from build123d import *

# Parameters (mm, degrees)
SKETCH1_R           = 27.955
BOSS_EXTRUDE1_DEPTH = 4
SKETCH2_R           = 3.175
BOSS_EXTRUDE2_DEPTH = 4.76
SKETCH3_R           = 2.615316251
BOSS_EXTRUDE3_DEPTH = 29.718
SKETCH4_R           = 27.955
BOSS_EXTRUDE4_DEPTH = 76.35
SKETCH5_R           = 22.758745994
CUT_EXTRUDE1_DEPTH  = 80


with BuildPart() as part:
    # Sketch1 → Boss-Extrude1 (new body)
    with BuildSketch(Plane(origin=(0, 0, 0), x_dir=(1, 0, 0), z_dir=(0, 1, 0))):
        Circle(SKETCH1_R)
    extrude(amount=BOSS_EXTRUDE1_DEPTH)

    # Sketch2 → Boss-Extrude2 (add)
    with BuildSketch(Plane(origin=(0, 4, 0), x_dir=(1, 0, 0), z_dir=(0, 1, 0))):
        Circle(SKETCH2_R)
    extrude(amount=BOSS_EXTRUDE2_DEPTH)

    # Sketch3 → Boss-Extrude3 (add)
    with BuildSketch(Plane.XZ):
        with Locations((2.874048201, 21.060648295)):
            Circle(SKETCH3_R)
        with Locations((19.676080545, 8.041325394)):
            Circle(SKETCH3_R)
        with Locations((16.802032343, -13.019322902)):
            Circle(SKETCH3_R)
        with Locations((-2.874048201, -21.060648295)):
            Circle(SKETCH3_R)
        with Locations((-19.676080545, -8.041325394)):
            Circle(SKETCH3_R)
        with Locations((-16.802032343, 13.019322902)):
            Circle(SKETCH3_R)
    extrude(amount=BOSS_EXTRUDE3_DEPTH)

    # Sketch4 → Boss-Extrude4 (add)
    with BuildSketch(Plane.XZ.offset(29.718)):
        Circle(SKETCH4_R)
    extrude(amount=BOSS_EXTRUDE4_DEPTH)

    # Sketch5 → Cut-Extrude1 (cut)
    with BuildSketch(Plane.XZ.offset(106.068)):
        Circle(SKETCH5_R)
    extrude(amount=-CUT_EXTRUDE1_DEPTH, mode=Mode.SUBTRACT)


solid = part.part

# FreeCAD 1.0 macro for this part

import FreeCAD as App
import Part
import Sketcher
Q = App.Units.Quantity

doc = App.newDocument("Part")
body = doc.addObject("PartDesign::Body", "Body")

sketch1 = doc.addObject("Sketcher::SketchObject", "Sketch")
body.addObject(sketch1)
sketch1.AttachmentSupport = (doc.XZ_Plane, [""])
sketch1.MapMode = "FlatFace"
sketch1.addGeometry(Part.Circle(App.Vector(0, 0, 0), App.Vector(0, 0, 1), 27.955), False)
sketch1.addConstraint([
    Sketcher.Constraint("Coincident", 0, 3, -1, 1),
    Sketcher.Constraint("Diameter", 0, Q("55.91 mm")),
])
pad1 = doc.addObject("PartDesign::Pad", "Pad")
body.addObject(pad1)
pad1.Profile = sketch1
pad1.Length = 4
pad1.Reversed = True

sketch2 = doc.addObject("Sketcher::SketchObject", "Sketch001")
body.addObject(sketch2)
sketch2.AttachmentSupport = (doc.XZ_Plane, [""])
sketch2.MapMode = "FlatFace"
sketch2.AttachmentOffset = App.Placement(App.Vector(0, 0, -4), App.Rotation())
sketch2.addGeometry(Part.Circle(App.Vector(0, 0, 0), App.Vector(0, 0, 1), 3.175), False)
sketch2.addConstraint([
    Sketcher.Constraint("Coincident", 0, 3, -1, 1),
    Sketcher.Constraint("Diameter", 0, Q("6.35 mm")),
])
pad2 = doc.addObject("PartDesign::Pad", "Pad001")
body.addObject(pad2)
pad2.Profile = sketch2
pad2.Length = 4.76
pad2.Reversed = True

sketch3 = doc.addObject("Sketcher::SketchObject", "Sketch002")
body.addObject(sketch3)
sketch3.AttachmentSupport = (doc.XZ_Plane, [""])
sketch3.MapMode = "FlatFace"
sketch3.addGeometry([
    Part.Circle(App.Vector(2.874048, 21.060648, 0), App.Vector(0, 0, 1), 2.615316),
    Part.Circle(App.Vector(19.676081, 8.041325, 0), App.Vector(0, 0, 1), 2.615316),
    Part.Circle(App.Vector(16.802032, -13.019323, 0), App.Vector(0, 0, 1), 2.615316),
    Part.Circle(App.Vector(-2.874048, -21.060648, 0), App.Vector(0, 0, 1), 2.615316),
    Part.Circle(App.Vector(-19.676081, -8.041325, 0), App.Vector(0, 0, 1), 2.615316),
    Part.Circle(App.Vector(-16.802032, 13.019323, 0), App.Vector(0, 0, 1), 2.615316),
], False)
sketch3.addConstraint([
    Sketcher.Constraint("Equal", 0, 1),
    Sketcher.Constraint("Equal", 1, 2),
    Sketcher.Constraint("Equal", 2, 3),
    Sketcher.Constraint("Equal", 3, 4),
    Sketcher.Constraint("Equal", 4, 5),
    Sketcher.Constraint("Symmetric", 0, 3, 3, 3, -1, 1),
    Sketcher.Constraint("Symmetric", 1, 3, 4, 3, -1, 1),
    Sketcher.Constraint("Symmetric", 2, 3, 5, 3, -1, 1),
    Sketcher.Constraint("Diameter", 0, Q("5.230633 mm")),
    Sketcher.Constraint("DistanceX", -1, 1, 0, 3, Q("2.874048 mm")),
    Sketcher.Constraint("DistanceY", -1, 1, 0, 3, Q("21.060648 mm")),
    Sketcher.Constraint("DistanceX", -1, 1, 1, 3, Q("19.676081 mm")),
    Sketcher.Constraint("DistanceX", 2, 3, 1, 3, Q("2.874048 mm")),
    Sketcher.Constraint("DistanceY", 2, 3, 1, 3, Q("21.060648 mm")),
    Sketcher.Constraint("DistanceY", 2, 3, 0, 3, Q("34.079971 mm")),
])
pad3 = doc.addObject("PartDesign::Pad", "Pad002")
body.addObject(pad3)
pad3.Profile = sketch3
pad3.Length = 29.718

sketch4 = doc.addObject("Sketcher::SketchObject", "Sketch003")
body.addObject(sketch4)
sketch4.AttachmentSupport = (doc.XZ_Plane, [""])
sketch4.MapMode = "FlatFace"
sketch4.AttachmentOffset = App.Placement(App.Vector(0, 0, 29.718), App.Rotation())
sketch4.addGeometry(Part.Circle(App.Vector(0, 0, 0), App.Vector(0, 0, 1), 27.955), False)
sketch4.addConstraint([
    Sketcher.Constraint("Coincident", 0, 3, -1, 1),
    Sketcher.Constraint("Diameter", 0, Q("55.91 mm")),
])
pad4 = doc.addObject("PartDesign::Pad", "Pad003")
body.addObject(pad4)
pad4.Profile = sketch4
pad4.Length = 76.35

sketch5 = doc.addObject("Sketcher::SketchObject", "Sketch004")
body.addObject(sketch5)
sketch5.AttachmentSupport = (doc.XZ_Plane, [""])
sketch5.MapMode = "FlatFace"
sketch5.AttachmentOffset = App.Placement(App.Vector(0, 0, 106.068), App.Rotation())
sketch5.addGeometry(Part.Circle(App.Vector(0, 0, 0), App.Vector(0, 0, 1), 22.758746), False)
sketch5.addConstraint([
    Sketcher.Constraint("Coincident", 0, 3, -1, 1),
    Sketcher.Constraint("Diameter", 0, Q("45.517492 mm")),
])
pocket1 = doc.addObject("PartDesign::Pocket", "Pocket")
body.addObject(pocket1)
pocket1.Profile = sketch5
pocket1.Length = 80

doc.recompute()
